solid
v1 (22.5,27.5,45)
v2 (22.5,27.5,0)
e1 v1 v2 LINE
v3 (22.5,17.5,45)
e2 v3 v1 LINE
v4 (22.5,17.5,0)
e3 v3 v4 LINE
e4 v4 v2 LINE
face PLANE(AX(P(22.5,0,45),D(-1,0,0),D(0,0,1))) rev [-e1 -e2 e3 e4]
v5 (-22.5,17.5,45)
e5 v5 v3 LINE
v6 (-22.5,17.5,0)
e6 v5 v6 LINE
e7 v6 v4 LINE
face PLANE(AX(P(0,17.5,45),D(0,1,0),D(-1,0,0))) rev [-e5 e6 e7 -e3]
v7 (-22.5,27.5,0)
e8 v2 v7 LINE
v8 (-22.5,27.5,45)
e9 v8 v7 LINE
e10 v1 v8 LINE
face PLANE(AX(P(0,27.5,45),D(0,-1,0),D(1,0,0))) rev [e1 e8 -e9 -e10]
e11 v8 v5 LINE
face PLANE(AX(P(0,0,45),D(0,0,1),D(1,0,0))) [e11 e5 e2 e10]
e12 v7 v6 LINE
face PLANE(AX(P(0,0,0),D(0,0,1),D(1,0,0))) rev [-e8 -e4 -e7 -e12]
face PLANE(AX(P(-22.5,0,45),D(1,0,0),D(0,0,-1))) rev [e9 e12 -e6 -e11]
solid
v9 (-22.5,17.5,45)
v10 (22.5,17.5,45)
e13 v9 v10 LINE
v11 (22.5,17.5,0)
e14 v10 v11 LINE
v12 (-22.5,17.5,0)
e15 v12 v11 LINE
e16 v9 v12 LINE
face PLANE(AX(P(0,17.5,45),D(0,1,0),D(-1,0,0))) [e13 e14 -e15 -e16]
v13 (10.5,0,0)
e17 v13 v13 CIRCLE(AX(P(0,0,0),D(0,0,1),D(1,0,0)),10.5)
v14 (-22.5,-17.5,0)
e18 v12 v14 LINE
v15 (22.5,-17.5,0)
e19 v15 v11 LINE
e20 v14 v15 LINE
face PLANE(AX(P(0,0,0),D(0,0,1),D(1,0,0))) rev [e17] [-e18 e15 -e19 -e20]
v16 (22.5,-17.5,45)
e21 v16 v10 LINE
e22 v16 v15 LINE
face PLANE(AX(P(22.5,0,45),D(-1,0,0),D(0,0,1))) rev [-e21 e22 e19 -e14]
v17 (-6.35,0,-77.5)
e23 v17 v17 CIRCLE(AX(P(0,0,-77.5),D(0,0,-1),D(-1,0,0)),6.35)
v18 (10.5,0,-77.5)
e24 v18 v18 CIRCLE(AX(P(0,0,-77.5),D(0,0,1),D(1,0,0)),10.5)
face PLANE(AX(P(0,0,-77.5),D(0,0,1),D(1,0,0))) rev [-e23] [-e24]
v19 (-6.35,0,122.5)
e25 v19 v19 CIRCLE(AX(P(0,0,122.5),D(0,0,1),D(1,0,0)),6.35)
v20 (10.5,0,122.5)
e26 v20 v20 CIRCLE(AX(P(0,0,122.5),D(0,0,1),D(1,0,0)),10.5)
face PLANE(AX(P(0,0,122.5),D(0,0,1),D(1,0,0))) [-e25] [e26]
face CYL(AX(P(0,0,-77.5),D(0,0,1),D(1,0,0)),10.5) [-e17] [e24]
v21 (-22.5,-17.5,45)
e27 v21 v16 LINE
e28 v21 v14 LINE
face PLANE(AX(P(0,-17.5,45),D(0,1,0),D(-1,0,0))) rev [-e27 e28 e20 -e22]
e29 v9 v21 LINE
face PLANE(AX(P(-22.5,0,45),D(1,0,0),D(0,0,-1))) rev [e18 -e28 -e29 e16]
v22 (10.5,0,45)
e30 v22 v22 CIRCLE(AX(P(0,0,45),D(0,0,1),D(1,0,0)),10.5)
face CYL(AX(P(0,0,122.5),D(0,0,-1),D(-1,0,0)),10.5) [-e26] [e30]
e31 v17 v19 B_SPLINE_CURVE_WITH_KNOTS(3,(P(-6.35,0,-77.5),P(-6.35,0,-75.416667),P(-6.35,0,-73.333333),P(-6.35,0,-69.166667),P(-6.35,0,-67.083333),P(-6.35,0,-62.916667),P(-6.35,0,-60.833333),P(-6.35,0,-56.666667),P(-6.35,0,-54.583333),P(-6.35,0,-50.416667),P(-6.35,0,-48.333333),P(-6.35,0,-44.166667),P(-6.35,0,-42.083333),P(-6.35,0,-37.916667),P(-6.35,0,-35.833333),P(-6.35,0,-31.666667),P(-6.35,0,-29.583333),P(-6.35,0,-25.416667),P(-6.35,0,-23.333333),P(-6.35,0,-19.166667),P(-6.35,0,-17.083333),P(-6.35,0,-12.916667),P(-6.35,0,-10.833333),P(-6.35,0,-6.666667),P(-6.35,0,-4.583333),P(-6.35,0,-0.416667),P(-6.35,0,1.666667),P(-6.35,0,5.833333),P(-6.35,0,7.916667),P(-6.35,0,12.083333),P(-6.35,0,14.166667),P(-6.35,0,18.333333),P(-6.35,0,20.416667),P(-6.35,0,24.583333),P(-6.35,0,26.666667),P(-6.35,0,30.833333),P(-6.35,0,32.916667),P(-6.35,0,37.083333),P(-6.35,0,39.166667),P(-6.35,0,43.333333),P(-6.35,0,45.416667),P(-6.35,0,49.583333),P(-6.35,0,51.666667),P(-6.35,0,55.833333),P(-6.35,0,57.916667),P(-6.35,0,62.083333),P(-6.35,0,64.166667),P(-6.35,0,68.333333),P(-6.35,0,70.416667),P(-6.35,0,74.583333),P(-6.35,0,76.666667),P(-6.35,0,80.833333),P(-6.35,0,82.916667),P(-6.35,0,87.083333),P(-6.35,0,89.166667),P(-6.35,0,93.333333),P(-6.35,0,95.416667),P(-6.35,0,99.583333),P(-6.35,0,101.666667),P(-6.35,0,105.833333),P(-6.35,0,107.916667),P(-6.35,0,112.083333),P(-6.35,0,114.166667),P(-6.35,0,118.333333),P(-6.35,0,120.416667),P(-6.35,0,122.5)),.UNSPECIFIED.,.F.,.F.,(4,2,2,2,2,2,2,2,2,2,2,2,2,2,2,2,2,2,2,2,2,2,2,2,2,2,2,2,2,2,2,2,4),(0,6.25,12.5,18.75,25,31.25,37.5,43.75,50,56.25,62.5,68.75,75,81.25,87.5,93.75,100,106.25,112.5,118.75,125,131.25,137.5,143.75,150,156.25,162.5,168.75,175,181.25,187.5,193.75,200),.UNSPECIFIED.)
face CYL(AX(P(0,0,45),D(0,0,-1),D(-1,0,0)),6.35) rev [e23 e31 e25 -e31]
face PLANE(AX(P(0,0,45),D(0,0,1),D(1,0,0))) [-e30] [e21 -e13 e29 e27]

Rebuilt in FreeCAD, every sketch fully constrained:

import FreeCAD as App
import Part
import Sketcher

V = App.Vector


def add_polygon(sketch, points):
    """Adds a closed chain of lines whose ends are joined by coincident constraints."""
    first, n = sketch.GeometryCount, len(points)
    for a, b in zip(points, points[1:] + points[:1]):
        sketch.addGeometry(Part.LineSegment(App.Vector(*a, 0), App.Vector(*b, 0)), False)
    for i in range(n):
        sketch.addConstraint(Sketcher.Constraint("Coincident", first + i, 2, first + (i + 1) % n, 1))

doc = App.newDocument("Part")
params = doc.addObject("Spreadsheet::Sheet", "Params")
for row, (alias, value) in enumerate([
    ("sketch1_width", "45 mm"),
    ("sketch1_height", "35 mm"),
    ("pad1_length", "45 mm"),
    ("sketch2_diameter", "12.7 mm"),
    ("pocket1_length", "45 mm"),
    ("sketch3_diameter", "21 mm"),
    ("pad2_length", "77.5 mm"),
    ("sketch4_diameter", "12.7 mm"),
    ("pocket2_length", "77.5 mm"),
    ("sketch5_diameter", "21 mm"),
    ("pad3_length", "77.5 mm"),
    ("sketch6_diameter", "12.7 mm"),
    ("pocket3_length", "77.5 mm"),
    ("sketch7_width", "45 mm"),
    ("sketch7_height", "10 mm"),
    ("pad4_length", "45 mm"),
], start=1):
    params.set(f"A{row}", alias)
    params.set(f"B{row}", "=" + value)
    params.setAlias(f"B{row}", alias)

body = doc.addObject("PartDesign::Body", "Body")

# Sketch on XY plane
sketch1 = body.newObject("Sketcher::SketchObject", "Sketch")
sketch1.AttachmentSupport = (doc.getObject("XY_Plane"), [""])
sketch1.MapMode = "FlatFace"
add_polygon(sketch1, [(-22, 18), (-22, -18), (22, -18), (22, 18)])  # lines 0-3
sketch1.addConstraint(Sketcher.Constraint("Vertical", 0))
sketch1.addConstraint(Sketcher.Constraint("Horizontal", 1))
sketch1.addConstraint(Sketcher.Constraint("Vertical", 2))
sketch1.addConstraint(Sketcher.Constraint("Horizontal", 3))
sketch1.addConstraint(Sketcher.Constraint("Symmetric", 0, 2, 2, 2, -1, 1))
sketch1.addConstraint(Sketcher.Constraint("DistanceX", 1, 1, 1, 2, 45.0))
sketch1.addConstraint(Sketcher.Constraint("DistanceY", 0, 2, 0, 1, 35.0))
sketch1.setExpression("Constraints[9]", "Params.sketch1_width")
sketch1.setExpression("Constraints[10]", "Params.sketch1_height")
pad1 = body.newObject("PartDesign::Pad", "Pad")
pad1.Profile = sketch1
pad1.setExpression("Length", "Params.pad1_length")

# Sketch on XY plane
sketch2 = body.newObject("Sketcher::SketchObject", "Sketch001")
sketch2.AttachmentSupport = (doc.getObject("XY_Plane"), [""])
sketch2.MapMode = "FlatFace"
sketch2.addGeometry(Part.Circle(V(0, 0, 0), V(0, 0, 1), 6), False)
sketch2.addConstraint(Sketcher.Constraint("Coincident", 0, 3, -1, 1))
sketch2.addConstraint(Sketcher.Constraint("Diameter", 0, 12.7))
sketch2.setExpression("Constraints[1]", "Params.sketch2_diameter")
pocket1 = body.newObject("PartDesign::Pocket", "Pocket")
pocket1.Profile = sketch2
pocket1.setExpression("Length", "Params.pocket1_length")
pocket1.Reversed = True

# Sketch on XY plane
sketch3 = body.newObject("Sketcher::SketchObject", "Sketch002")
sketch3.AttachmentSupport = (doc.getObject("XY_Plane"), [""])
sketch3.MapMode = "FlatFace"
sketch3.addGeometry(Part.Circle(V(0, 0, 0), V(0, 0, 1), 10), False)
sketch3.addConstraint(Sketcher.Constraint("Coincident", 0, 3, -1, 1))
sketch3.addConstraint(Sketcher.Constraint("Diameter", 0, 21.0))
sketch3.setExpression("Constraints[1]", "Params.sketch3_diameter")
pad2 = body.newObject("PartDesign::Pad", "Pad001")
pad2.Profile = sketch3
pad2.setExpression("Length", "Params.pad2_length")
pad2.Reversed = True

# Sketch on XY plane
sketch4 = body.newObject("Sketcher::SketchObject", "Sketch003")
sketch4.AttachmentSupport = (doc.getObject("XY_Plane"), [""])
sketch4.MapMode = "FlatFace"
sketch4.AttachmentOffset = App.Placement(V(0, 0, -77.5), App.Rotation())
sketch4.addGeometry(Part.Circle(V(0, 0, 0), V(0, 0, 1), 6), False)
sketch4.addConstraint(Sketcher.Constraint("Coincident", 0, 3, -1, 1))
sketch4.addConstraint(Sketcher.Constraint("Diameter", 0, 12.7))
sketch4.setExpression("Constraints[1]", "Params.sketch4_diameter")
pocket2 = body.newObject("PartDesign::Pocket", "Pocket001")
pocket2.Profile = sketch4
pocket2.setExpression("Length", "Params.pocket2_length")
pocket2.Reversed = True

# Sketch on XY plane
sketch5 = body.newObject("Sketcher::SketchObject", "Sketch004")
sketch5.AttachmentSupport = (doc.getObject("XY_Plane"), [""])
sketch5.MapMode = "FlatFace"
sketch5.AttachmentOffset = App.Placement(V(0, 0, 122.5), App.Rotation())
sketch5.addGeometry(Part.Circle(V(0, 0, 0), V(0, 0, 1), 10), False)
sketch5.addConstraint(Sketcher.Constraint("Coincident", 0, 3, -1, 1))
sketch5.addConstraint(Sketcher.Constraint("Diameter", 0, 21.0))
sketch5.setExpression("Constraints[1]", "Params.sketch5_diameter")
pad3 = body.newObject("PartDesign::Pad", "Pad002")
pad3.Profile = sketch5
pad3.setExpression("Length", "Params.pad3_length")
pad3.Reversed = True

# Sketch on XY plane
sketch6 = body.newObject("Sketcher::SketchObject", "Sketch005")
sketch6.AttachmentSupport = (doc.getObject("XY_Plane"), [""])
sketch6.MapMode = "FlatFace"
sketch6.AttachmentOffset = App.Placement(V(0, 0, 45), App.Rotation())
sketch6.addGeometry(Part.Circle(V(0, 0, 0), V(0, 0, 1), 6), False)
sketch6.addConstraint(Sketcher.Constraint("Coincident", 0, 3, -1, 1))
sketch6.addConstraint(Sketcher.Constraint("Diameter", 0, 12.7))
sketch6.setExpression("Constraints[1]", "Params.sketch6_diameter")
pocket3 = body.newObject("PartDesign::Pocket", "Pocket002")
pocket3.Profile = sketch6
pocket3.setExpression("Length", "Params.pocket3_length")
pocket3.Reversed = True
body2 = doc.addObject("PartDesign::Body", "Body001")

# Sketch on XY plane
sketch7 = body2.newObject("Sketcher::SketchObject", "Sketch006")
sketch7.AttachmentSupport = (doc.getObject("XY_Plane001"), [""])
sketch7.MapMode = "FlatFace"
add_polygon(sketch7, [(-22, 28), (-22, 18), (22, 18), (22, 28)])  # lines 0-3
sketch7.addConstraint(Sketcher.Constraint("Vertical", 0))
sketch7.addConstraint(Sketcher.Constraint("Horizontal", 1))
sketch7.addConstraint(Sketcher.Constraint("Vertical", 2))
sketch7.addConstraint(Sketcher.Constraint("Horizontal", 3))
sketch7.addConstraint(Sketcher.Constraint("DistanceX", 1, 1, 1, 2, 45.0))
sketch7.addConstraint(Sketcher.Constraint("DistanceY", 0, 2, 0, 1, 10.0))
sketch7.addConstraint(Sketcher.Constraint("DistanceX", 0, 2, -1, 1, 22.5))
sketch7.addConstraint(Sketcher.Constraint("DistanceY", -1, 1, 0, 2, 17.5))
sketch7.setExpression("Constraints[8]", "Params.sketch7_width")
sketch7.setExpression("Constraints[9]", "Params.sketch7_height")
pad4 = body2.newObject("PartDesign::Pad", "Pad003")
pad4.Profile = sketch7
pad4.setExpression("Length", "Params.pad4_length")

doc.recompute()
